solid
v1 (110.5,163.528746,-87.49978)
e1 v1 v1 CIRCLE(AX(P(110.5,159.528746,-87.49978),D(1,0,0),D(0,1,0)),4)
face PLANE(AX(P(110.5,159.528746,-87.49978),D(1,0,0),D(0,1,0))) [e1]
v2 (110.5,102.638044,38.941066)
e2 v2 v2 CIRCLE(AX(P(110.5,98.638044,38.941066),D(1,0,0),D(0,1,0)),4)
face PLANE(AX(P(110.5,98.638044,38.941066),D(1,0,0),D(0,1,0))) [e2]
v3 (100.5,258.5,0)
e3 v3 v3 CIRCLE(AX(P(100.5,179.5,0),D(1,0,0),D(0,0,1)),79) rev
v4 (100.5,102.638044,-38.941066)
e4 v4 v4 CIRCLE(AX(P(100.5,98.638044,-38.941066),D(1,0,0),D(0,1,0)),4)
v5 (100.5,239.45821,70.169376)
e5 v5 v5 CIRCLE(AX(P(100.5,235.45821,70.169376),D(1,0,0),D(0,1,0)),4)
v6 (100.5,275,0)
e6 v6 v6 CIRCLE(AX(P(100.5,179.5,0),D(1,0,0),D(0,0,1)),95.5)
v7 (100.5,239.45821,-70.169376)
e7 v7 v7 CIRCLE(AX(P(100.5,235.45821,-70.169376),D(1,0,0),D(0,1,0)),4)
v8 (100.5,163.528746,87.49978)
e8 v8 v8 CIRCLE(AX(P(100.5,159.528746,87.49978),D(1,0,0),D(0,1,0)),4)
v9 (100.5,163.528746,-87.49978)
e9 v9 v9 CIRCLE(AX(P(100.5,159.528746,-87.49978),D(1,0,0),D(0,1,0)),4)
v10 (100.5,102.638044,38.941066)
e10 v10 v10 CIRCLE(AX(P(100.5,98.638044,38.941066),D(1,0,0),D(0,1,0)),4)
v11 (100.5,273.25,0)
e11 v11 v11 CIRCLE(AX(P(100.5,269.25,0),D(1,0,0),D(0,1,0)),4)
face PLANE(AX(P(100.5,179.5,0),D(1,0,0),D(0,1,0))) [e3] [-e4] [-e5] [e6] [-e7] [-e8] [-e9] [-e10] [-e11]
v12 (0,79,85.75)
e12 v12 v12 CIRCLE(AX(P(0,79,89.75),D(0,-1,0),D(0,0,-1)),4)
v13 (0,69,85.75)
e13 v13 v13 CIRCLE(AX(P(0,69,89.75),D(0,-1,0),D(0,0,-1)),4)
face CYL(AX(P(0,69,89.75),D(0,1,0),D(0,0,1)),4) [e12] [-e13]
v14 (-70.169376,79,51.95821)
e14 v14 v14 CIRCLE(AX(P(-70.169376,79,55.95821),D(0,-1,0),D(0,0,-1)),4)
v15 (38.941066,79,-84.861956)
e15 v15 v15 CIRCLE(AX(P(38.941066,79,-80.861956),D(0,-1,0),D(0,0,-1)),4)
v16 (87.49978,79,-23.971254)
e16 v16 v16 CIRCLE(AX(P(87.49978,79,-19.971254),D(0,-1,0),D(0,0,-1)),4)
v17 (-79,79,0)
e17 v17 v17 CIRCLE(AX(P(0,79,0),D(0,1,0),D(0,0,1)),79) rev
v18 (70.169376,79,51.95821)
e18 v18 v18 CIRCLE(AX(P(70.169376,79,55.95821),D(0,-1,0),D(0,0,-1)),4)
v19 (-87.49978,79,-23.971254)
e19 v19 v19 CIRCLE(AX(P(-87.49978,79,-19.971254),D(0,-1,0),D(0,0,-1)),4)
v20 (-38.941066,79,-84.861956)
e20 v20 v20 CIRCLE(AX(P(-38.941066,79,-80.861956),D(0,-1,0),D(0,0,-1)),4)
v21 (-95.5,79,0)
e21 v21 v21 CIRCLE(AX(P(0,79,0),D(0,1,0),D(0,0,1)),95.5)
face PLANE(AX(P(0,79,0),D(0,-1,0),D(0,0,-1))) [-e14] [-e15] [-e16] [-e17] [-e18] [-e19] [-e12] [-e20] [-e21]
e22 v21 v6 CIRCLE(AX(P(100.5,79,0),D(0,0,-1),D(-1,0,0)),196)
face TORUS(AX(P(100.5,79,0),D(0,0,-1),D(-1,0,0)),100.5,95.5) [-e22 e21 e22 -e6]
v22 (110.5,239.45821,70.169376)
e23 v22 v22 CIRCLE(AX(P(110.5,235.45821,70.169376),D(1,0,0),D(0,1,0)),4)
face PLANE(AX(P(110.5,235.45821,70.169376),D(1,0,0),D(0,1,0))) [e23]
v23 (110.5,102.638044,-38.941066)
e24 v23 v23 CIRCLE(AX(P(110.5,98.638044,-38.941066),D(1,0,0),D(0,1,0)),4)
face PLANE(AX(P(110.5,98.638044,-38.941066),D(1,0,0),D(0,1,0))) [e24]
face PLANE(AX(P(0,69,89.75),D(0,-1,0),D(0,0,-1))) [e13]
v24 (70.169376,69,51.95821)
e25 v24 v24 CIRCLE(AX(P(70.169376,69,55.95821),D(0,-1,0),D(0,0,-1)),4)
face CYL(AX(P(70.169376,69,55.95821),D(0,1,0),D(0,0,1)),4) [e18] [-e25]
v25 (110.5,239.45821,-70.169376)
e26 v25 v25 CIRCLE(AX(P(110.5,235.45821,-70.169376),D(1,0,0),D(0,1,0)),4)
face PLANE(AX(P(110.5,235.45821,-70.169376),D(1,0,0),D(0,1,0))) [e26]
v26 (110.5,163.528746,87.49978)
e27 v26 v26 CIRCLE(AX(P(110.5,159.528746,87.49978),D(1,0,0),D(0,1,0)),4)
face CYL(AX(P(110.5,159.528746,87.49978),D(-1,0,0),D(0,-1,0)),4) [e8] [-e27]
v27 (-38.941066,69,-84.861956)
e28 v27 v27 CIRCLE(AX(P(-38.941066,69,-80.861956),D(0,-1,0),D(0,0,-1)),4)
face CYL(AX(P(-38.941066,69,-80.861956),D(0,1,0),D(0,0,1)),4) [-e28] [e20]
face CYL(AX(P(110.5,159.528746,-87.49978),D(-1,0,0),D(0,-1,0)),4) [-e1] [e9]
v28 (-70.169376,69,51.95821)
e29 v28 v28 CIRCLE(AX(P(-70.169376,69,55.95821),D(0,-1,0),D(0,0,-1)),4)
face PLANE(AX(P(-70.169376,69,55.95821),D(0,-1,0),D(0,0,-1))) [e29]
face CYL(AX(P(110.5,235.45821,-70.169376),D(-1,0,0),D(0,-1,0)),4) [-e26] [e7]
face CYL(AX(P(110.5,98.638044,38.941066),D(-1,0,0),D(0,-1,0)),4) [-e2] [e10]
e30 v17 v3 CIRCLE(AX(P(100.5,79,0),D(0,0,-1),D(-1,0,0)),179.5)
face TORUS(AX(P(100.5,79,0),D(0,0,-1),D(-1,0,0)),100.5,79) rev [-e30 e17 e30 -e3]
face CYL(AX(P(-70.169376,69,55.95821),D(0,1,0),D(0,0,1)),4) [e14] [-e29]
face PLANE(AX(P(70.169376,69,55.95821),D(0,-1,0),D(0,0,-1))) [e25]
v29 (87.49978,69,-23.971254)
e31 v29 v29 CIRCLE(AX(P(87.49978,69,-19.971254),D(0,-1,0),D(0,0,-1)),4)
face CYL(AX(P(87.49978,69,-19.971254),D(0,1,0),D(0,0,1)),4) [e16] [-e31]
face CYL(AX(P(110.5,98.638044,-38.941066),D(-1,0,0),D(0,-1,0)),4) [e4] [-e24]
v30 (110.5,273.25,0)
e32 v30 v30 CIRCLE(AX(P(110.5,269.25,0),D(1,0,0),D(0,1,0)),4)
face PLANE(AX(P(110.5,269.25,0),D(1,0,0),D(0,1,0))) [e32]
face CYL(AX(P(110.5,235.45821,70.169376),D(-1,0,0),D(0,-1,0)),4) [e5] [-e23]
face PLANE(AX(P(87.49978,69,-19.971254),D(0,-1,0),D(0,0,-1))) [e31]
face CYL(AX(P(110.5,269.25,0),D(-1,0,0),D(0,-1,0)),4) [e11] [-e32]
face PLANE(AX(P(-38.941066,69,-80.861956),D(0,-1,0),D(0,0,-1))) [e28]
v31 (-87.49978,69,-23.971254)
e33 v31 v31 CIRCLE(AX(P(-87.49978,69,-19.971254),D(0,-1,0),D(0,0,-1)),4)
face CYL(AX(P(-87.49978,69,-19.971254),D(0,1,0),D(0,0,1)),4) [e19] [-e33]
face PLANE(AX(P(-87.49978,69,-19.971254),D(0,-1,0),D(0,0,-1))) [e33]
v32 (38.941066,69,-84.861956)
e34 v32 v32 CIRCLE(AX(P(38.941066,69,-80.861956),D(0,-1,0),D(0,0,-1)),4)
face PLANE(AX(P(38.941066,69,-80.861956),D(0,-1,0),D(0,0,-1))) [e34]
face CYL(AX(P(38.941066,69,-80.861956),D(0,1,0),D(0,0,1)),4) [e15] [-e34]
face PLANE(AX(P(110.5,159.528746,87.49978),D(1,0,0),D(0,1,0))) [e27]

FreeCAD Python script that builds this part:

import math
import FreeCAD as App
import Part
import Sketcher
Q = App.Units.Quantity

doc = App.newDocument("Part")
body = doc.addObject("PartDesign::Body", "Body")

# Sketch on XZ plane
sketch1 = body.newObject("Sketcher::SketchObject", "Sketch")
sketch1.AttachmentSupport = (doc.getObject("XZ_Plane"), [""])
sketch1.MapMode = "FlatFace"
sketch1.addGeometry([
    Part.Circle(App.Vector(0, 0, 0), App.Vector(0, 0, 1), 96),
    Part.Circle(App.Vector(0, 0, 0), App.Vector(0, 0, 1), 79),
], False)
sketch1.addConstraint([
    Sketcher.Constraint("Coincident", 0, 3, -1, 1),
    Sketcher.Constraint("Coincident", 1, 3, -1, 1),
    Sketcher.Constraint("Diameter", 0, Q("191 mm")),
    Sketcher.Constraint("Diameter", 1, Q("158 mm")),
])

# Sketch on XY plane
sketch2 = body.newObject("Sketcher::SketchObject", "Sketch001")
sketch2.AttachmentSupport = (doc.getObject("XY_Plane"), [""])
sketch2.MapMode = "FlatFace"
sketch2.addGeometry([
    Part.LineSegment(App.Vector(0, 0, 0), App.Vector(0, 79, 0)),
    Part.ArcOfCircle(Part.Circle(App.Vector(101, 79, 0), App.Vector(0, 0, 1), 101), math.radians(90), math.radians(180)),
    Part.LineSegment(App.Vector(100, 180, 0), App.Vector(180, 180, 0)),
], False)
sketch2.addConstraint([
    Sketcher.Constraint("Tangent", 0, 2, 1, 2),
    Sketcher.Constraint("Tangent", 1, 1, 2, 1),
    Sketcher.Constraint("Vertical", 0),
    Sketcher.Constraint("Horizontal", 2),
    Sketcher.Constraint("Coincident", 0, 1, -1, 1),
    Sketcher.Constraint("Equal", 2, 0),
    Sketcher.Constraint("Radius", 1, Q("100.5 mm")),
    Sketcher.Constraint("DistanceX", 2, 1, 2, 2, Q("79 mm")),
])
doc.recompute()

additivepipe = body.newObject("PartDesign::AdditivePipe", "AdditivePipe")
additivepipe.Profile = sketch1
additivepipe.Spine = (sketch2, ["Edge1", "Edge2", "Edge3"])

# Sketch on XZ plane
sketch3 = body.newObject("Sketcher::SketchObject", "Sketch002")
sketch3.AttachmentSupport = (doc.getObject("XZ_Plane"), [""])
sketch3.MapMode = "FlatFace"
sketch3.AttachmentOffset = App.Placement(App.Vector(0, 0, -79), App.Rotation())
sketch3.addGeometry([
    Part.Circle(App.Vector(0, 0, 0), App.Vector(0, 0, 1), 85),
    Part.Circle(App.Vector(0, 0, 0), App.Vector(0, 0, 1), 79),
], False)
sketch3.addConstraint([
    Sketcher.Constraint("Coincident", 0, 3, -1, 1),
    Sketcher.Constraint("Coincident", 1, 3, -1, 1),
    Sketcher.Constraint("Diameter", 0, Q("170 mm")),
    Sketcher.Constraint("Diameter", 1, Q("158 mm")),
])
pocket1 = body.newObject("PartDesign::Pocket", "Pocket")
pocket1.Profile = sketch3
pocket1.Length = 79
pocket1.Reversed = True

# Sketch on YZ plane
sketch4 = body.newObject("Sketcher::SketchObject", "Sketch003")
sketch4.AttachmentSupport = (doc.getObject("YZ_Plane"), [""])
sketch4.MapMode = "FlatFace"
sketch4.AttachmentOffset = App.Placement(App.Vector(0, 0, 179.5), App.Rotation())
sketch4.addGeometry([
    Part.Circle(App.Vector(180, 0, 0), App.Vector(0, 0, 1), 85),
    Part.Circle(App.Vector(180, 0, 0), App.Vector(0, 0, 1), 79),
], False)
sketch4.addConstraint([
    Sketcher.Constraint("Coincident", 1, 3, 0, 3),
    Sketcher.Constraint("PointOnObject", 0, 3, -1),
    Sketcher.Constraint("Diameter", 0, Q("170 mm")),
    Sketcher.Constraint("Diameter", 1, Q("158 mm")),
    Sketcher.Constraint("DistanceX", -1, 1, 0, 3, Q("179.5 mm")),
])
pocket2 = body.newObject("PartDesign::Pocket", "Pocket001")
pocket2.Profile = sketch4
pocket2.Length = 79

# Sketch on XZ plane
sketch5 = body.newObject("Sketcher::SketchObject", "Sketch004")
sketch5.AttachmentSupport = (doc.getObject("XZ_Plane"), [""])
sketch5.MapMode = "FlatFace"
sketch5.AttachmentOffset = App.Placement(App.Vector(0, 0, -79), App.Rotation())
sketch5.addGeometry(Part.Circle(App.Vector(0, 0, 0), App.Vector(0, 0, 1), 96), False)
sketch5.addConstraint([
    Sketcher.Constraint("Coincident", 0, 3, -1, 1),
    Sketcher.Constraint("Diameter", 0, Q("191 mm")),
])
pocket3 = body.newObject("PartDesign::Pocket", "Pocket002")
pocket3.Profile = sketch5
pocket3.Length = 79
pocket3.Reversed = True

# Sketch on XZ plane
sketch6 = body.newObject("Sketcher::SketchObject", "Sketch005")
sketch6.AttachmentSupport = (doc.getObject("XZ_Plane"), [""])
sketch6.MapMode = "FlatFace"
sketch6.AttachmentOffset = App.Placement(App.Vector(0, 0, -79), App.Rotation())
sketch6.addGeometry([
    Part.Circle(App.Vector(0, 89.8, 0), App.Vector(0, 0, 1), 4),  # 0
    Part.Circle(App.Vector(70.2, 56, 0), App.Vector(0, 0, 1), 4),  # 1
    Part.Circle(App.Vector(87.5, -20, 0), App.Vector(0, 0, 1), 4),  # 2
    Part.Circle(App.Vector(38.9, -80.9, 0), App.Vector(0, 0, 1), 4),  # 3
    Part.Circle(App.Vector(-38.9, -80.9, 0), App.Vector(0, 0, 1), 4),  # 4
    Part.Circle(App.Vector(-87.5, -20, 0), App.Vector(0, 0, 1), 4),  # 5
    Part.Circle(App.Vector(-70.2, 56, 0), App.Vector(0, 0, 1), 4),  # 6
], False)
sketch6.addConstraint([
    Sketcher.Constraint("Equal", 0, 1),
    Sketcher.Constraint("Equal", 1, 2),
    Sketcher.Constraint("Equal", 2, 3),
    Sketcher.Constraint("Equal", 3, 4),
    Sketcher.Constraint("Equal", 4, 5),
    Sketcher.Constraint("Equal", 5, 6),
    Sketcher.Constraint("Symmetric", 3, 3, 4, 3, -2),
    Sketcher.Constraint("Symmetric", 2, 3, 5, 3, -2),
    Sketcher.Constraint("Symmetric", 1, 3, 6, 3, -2),
    Sketcher.Constraint("PointOnObject", 0, 3, -2),
    Sketcher.Constraint("Diameter", 0, Q("8 mm")),
    Sketcher.Constraint("DistanceY", -1, 1, 0, 3, Q("89.75 mm")),
    Sketcher.Constraint("DistanceY", -1, 1, 1, 3, Q("55.95821 mm")),
    Sketcher.Constraint("DistanceX", -1, 1, 2, 3, Q("87.49978 mm")),
    Sketcher.Constraint("DistanceX", 3, 3, 1, 3, Q("31.22831 mm")),
    Sketcher.Constraint("DistanceX", 4, 3, 3, 3, Q("77.882131 mm")),
    Sketcher.Constraint("DistanceY", 2, 3, -1, 1, Q("19.971254 mm")),
    Sketcher.Constraint("DistanceY", 3, 3, -1, 1, Q("80.861956 mm")),
])
pad1 = body.newObject("PartDesign::Pad", "Pad")
pad1.Profile = sketch6
pad1.Length = 10

# Sketch on YZ plane
sketch7 = body.newObject("Sketcher::SketchObject", "Sketch006")
sketch7.AttachmentSupport = (doc.getObject("YZ_Plane"), [""])
sketch7.MapMode = "FlatFace"
sketch7.AttachmentOffset = App.Placement(App.Vector(0, 0, 100.5), App.Rotation())
sketch7.addGeometry(Part.Circle(App.Vector(180, 0, 0), App.Vector(0, 0, 1), 96), False)
sketch7.addConstraint([
    Sketcher.Constraint("PointOnObject", 0, 3, -1),
    Sketcher.Constraint("Diameter", 0, Q("191 mm")),
    Sketcher.Constraint("DistanceX", -1, 1, 0, 3, Q("179.5 mm")),
])
pocket4 = body.newObject("PartDesign::Pocket", "Pocket003")
pocket4.Profile = sketch7
pocket4.Type = "ThroughAll"
pocket4.Reversed = True

# Sketch on YZ plane
sketch8 = body.newObject("Sketcher::SketchObject", "Sketch007")
sketch8.AttachmentSupport = (doc.getObject("YZ_Plane"), [""])
sketch8.MapMode = "FlatFace"
sketch8.AttachmentOffset = App.Placement(App.Vector(0, 0, 100.5), App.Rotation())
sketch8.addGeometry([
    Part.Circle(App.Vector(269.2, 0, 0), App.Vector(0, 0, 1), 4),  # 0
    Part.Circle(App.Vector(235.5, -70.2, 0), App.Vector(0, 0, 1), 4),  # 1
    Part.Circle(App.Vector(159.5, -87.5, 0), App.Vector(0, 0, 1), 4),  # 2
    Part.Circle(App.Vector(98.6, -38.9, 0), App.Vector(0, 0, 1), 4),  # 3
    Part.Circle(App.Vector(98.6, 38.9, 0), App.Vector(0, 0, 1), 4),  # 4
    Part.Circle(App.Vector(159.5, 87.5, 0), App.Vector(0, 0, 1), 4),  # 5
    Part.Circle(App.Vector(235.5, 70.2, 0), App.Vector(0, 0, 1), 4),  # 6
], False)
sketch8.addConstraint([
    Sketcher.Constraint("Equal", 0, 1),
    Sketcher.Constraint("Equal", 1, 2),
    Sketcher.Constraint("Equal", 2, 3),
    Sketcher.Constraint("Equal", 3, 4),
    Sketcher.Constraint("Equal", 4, 5),
    Sketcher.Constraint("Equal", 5, 6),
    Sketcher.Constraint("Symmetric", 3, 3, 4, 3, -1),
    Sketcher.Constraint("Symmetric", 2, 3, 5, 3, -1),
    Sketcher.Constraint("Symmetric", 1, 3, 6, 3, -1),
    Sketcher.Constraint("PointOnObject", 0, 3, -1),
    Sketcher.Constraint("Diameter", 0, Q("8 mm")),
    Sketcher.Constraint("DistanceX", -1, 1, 0, 3, Q("269.25 mm")),
    Sketcher.Constraint("DistanceX", -1, 1, 1, 3, Q("235.45821 mm")),
    Sketcher.Constraint("DistanceY", 2, 3, -1, 1, Q("87.49978 mm")),
    Sketcher.Constraint("DistanceY", 1, 3, 3, 3, Q("31.22831 mm")),
    Sketcher.Constraint("DistanceY", 3, 3, 4, 3, Q("77.882131 mm")),
    Sketcher.Constraint("DistanceX", -1, 1, 2, 3, Q("159.528746 mm")),
    Sketcher.Constraint("DistanceX", -1, 1, 3, 3, Q("98.638044 mm")),
])
pad2 = body.newObject("PartDesign::Pad", "Pad001")
pad2.Profile = sketch8
pad2.Length = 10

doc.recompute()
